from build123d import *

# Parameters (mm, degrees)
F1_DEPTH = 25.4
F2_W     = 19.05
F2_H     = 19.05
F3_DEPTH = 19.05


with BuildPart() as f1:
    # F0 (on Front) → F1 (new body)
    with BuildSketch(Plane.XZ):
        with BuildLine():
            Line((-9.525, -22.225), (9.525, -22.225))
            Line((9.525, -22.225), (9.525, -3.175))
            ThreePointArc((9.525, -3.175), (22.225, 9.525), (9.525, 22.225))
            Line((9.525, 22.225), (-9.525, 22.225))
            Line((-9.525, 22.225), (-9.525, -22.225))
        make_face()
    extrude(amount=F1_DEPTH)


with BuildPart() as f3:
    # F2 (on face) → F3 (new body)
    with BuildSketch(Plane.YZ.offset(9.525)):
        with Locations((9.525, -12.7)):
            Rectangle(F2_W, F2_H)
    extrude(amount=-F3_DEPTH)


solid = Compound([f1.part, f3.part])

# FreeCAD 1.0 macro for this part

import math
import FreeCAD as App
import Part
import Sketcher
from FreeCAD import Vector
Q = App.Units.Quantity

doc = App.newDocument("Part")
body = doc.addObject("PartDesign::Body", "Body")

# Sketch on XZ plane
sketch1 = doc.addObject("Sketcher::SketchObject", "Sketch")
body.addObject(sketch1)
sketch1.AttachmentSupport = (doc.XZ_Plane, [""])
sketch1.MapMode = "FlatFace"
sketch1.addGeometry([
    Part.LineSegment(Vector(-9.525, -22.225, 0), Vector(9.525, -22.225, 0)),  # 0
    Part.LineSegment(Vector(9.525, -22.225, 0), Vector(9.525, -3.175, 0)),  # 1
    Part.ArcOfCircle(Part.Circle(Vector(9.525, 9.525, 0), Vector(0, 0, 1), 12.7), math.radians(-90), math.radians(90)),  # 2
    Part.LineSegment(Vector(9.525, 22.225, 0), Vector(-9.525, 22.225, 0)),  # 3
    Part.LineSegment(Vector(-9.525, 22.225, 0), Vector(-9.525, -22.225, 0)),  # 4
], False)
sketch1.addConstraint([
    Sketcher.Constraint("Coincident", 0, 2, 1, 1),
    Sketcher.Constraint("Coincident", 1, 2, 2, 1),
    Sketcher.Constraint("Tangent", 2, 2, 3, 1),
    Sketcher.Constraint("Coincident", 3, 2, 4, 1),
    Sketcher.Constraint("Coincident", 4, 2, 0, 1),
    Sketcher.Constraint("Horizontal", 0),
    Sketcher.Constraint("Vertical", 1),
    Sketcher.Constraint("Horizontal", 3),
    Sketcher.Constraint("Vertical", 4),
    Sketcher.Constraint("Symmetric", 0, 2, 3, 2, -1, 1),
    Sketcher.Constraint("Vertical", 2, 3, 0, 2),
    Sketcher.Constraint("Equal", 3, 1),
    Sketcher.Constraint("Radius", 2, Q("0.5 in")),
    Sketcher.Constraint("DistanceX", 0, 1, 0, 2, Q("0.75 in")),
])
pad1 = doc.addObject("PartDesign::Pad", "Pad")
body.addObject(pad1)
pad1.Profile = sketch1
pad1.Length = Q("1 in")
body2 = doc.addObject("PartDesign::Body", "Body001")

# Sketch on YZ plane
sketch2 = doc.addObject("Sketcher::SketchObject", "Sketch001")
body2.addObject(sketch2)
sketch2.AttachmentSupport = (doc.getObject("YZ_Plane001"), [""])
sketch2.MapMode = "FlatFace"
sketch2.AttachmentOffset = App.Placement(Vector(0, 0, 0.375 * 25.4), App.Rotation())
sketch2.addGeometry([
    Part.LineSegment(Vector(0, -3.175, 0), Vector(0, -22.225, 0)),
    Part.LineSegment(Vector(0, -22.225, 0), Vector(19.05, -22.225, 0)),
    Part.LineSegment(Vector(19.05, -22.225, 0), Vector(19.05, -3.175, 0)),
    Part.LineSegment(Vector(19.05, -3.175, 0), Vector(0, -3.175, 0)),
], False)
sketch2.addConstraint([
    Sketcher.Constraint("Coincident", 0, 2, 1, 1),
    Sketcher.Constraint("Coincident", 1, 2, 2, 1),
    Sketcher.Constraint("Coincident", 2, 2, 3, 1),
    Sketcher.Constraint("Coincident", 3, 2, 0, 1),
    Sketcher.Constraint("Vertical", 0),
    Sketcher.Constraint("Horizontal", 1),
    Sketcher.Constraint("Vertical", 2),
    Sketcher.Constraint("Horizontal", 3),
    Sketcher.Constraint("PointOnObject", 0, 2, -2),
    Sketcher.Constraint("Equal", 3, 0),
    Sketcher.Constraint("DistanceX", 1, 1, 1, 2, Q("0.75 in")),
    Sketcher.Constraint("DistanceY", 0, 2, -1, 1, Q("0.875 in")),
])
pad2 = doc.addObject("PartDesign::Pad", "Pad001")
body2.addObject(pad2)
pad2.Profile = sketch2
pad2.Length = Q("0.75 in")
pad2.Reversed = True

doc.recompute()
